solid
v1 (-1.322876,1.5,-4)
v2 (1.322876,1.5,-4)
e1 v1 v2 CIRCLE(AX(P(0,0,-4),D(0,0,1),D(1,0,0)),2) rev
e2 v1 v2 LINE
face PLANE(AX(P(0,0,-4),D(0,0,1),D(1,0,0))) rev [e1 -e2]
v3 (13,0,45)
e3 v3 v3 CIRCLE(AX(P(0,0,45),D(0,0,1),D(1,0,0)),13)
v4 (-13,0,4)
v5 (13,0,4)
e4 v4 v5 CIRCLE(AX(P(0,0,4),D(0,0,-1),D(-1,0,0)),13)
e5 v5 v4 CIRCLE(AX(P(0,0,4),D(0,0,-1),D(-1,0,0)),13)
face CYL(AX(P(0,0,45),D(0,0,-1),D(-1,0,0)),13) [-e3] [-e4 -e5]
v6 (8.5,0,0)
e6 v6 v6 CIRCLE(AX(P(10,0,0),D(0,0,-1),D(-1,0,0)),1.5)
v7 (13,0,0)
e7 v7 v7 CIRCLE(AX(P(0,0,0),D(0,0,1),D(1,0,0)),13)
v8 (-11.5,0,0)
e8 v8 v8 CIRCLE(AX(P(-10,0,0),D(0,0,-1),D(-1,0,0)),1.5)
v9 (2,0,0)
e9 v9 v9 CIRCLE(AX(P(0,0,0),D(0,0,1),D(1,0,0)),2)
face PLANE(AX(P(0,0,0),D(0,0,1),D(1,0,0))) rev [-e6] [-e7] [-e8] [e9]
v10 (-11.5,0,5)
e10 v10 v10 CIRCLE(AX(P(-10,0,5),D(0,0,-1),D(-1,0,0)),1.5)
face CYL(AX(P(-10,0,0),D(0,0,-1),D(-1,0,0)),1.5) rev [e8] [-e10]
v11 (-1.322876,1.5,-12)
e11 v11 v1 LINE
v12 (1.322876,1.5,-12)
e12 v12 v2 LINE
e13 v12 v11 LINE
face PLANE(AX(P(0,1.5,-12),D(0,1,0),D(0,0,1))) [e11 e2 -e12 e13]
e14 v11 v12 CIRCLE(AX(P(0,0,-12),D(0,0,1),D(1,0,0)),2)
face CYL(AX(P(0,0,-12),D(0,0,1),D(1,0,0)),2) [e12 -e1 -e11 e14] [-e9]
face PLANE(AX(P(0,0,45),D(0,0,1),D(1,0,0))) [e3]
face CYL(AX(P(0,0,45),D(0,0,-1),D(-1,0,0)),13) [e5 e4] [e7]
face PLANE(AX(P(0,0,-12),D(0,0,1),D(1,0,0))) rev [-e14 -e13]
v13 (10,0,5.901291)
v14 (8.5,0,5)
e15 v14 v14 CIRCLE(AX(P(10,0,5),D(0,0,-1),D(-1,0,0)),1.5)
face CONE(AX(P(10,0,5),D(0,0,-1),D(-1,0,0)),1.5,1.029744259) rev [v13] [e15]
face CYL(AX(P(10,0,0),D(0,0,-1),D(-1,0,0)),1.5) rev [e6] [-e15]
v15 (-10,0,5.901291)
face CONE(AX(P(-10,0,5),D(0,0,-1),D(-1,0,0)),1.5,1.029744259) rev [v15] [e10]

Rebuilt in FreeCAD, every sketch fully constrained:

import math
import FreeCAD as App
import Part
import Sketcher

V = App.Vector

doc = App.newDocument("Part")
body = doc.addObject("PartDesign::Body", "Body")

sketch1 = doc.addObject("Sketcher::SketchObject", "Sketch")
body.addObject(sketch1)
sketch1.AttachmentSupport = (doc.XY_Plane, [""])
sketch1.MapMode = "FlatFace"
sketch1.addGeometry(Part.Circle(V(0, 0, 0), V(0, 0, 1), 13), False)
sketch1.addConstraint([
    Sketcher.Constraint("Coincident", 0, 3, -1, 1),
    Sketcher.Constraint("Diameter", 0, 26.0),
])
pad1 = doc.addObject("PartDesign::Pad", "Pad")
body.addObject(pad1)
pad1.Profile = sketch1
pad1.Length = 45

sketch2 = doc.addObject("Sketcher::SketchObject", "Sketch001")
body.addObject(sketch2)
sketch2.AttachmentSupport = (doc.XY_Plane, [""])
sketch2.MapMode = "FlatFace"
sketch2.addGeometry([
    Part.ArcOfCircle(Part.Circle(V(0, 0, 0), V(0, 0, 1), 2), math.radians(0), math.radians(48.590378)),
    Part.LineSegment(V(1.322876, 1.5, 0), V(-1.322876, 1.5, 0)),
    Part.ArcOfCircle(Part.Circle(V(0, 0, 0), V(0, 0, 1), 2), math.radians(131.409622), math.radians(360)),
], False)
sketch2.addConstraint([
    Sketcher.Constraint("Coincident", 0, 2, 1, 1),
    Sketcher.Constraint("Coincident", 1, 2, 2, 1),
    Sketcher.Constraint("Tangent", 2, 2, 0, 1),
    Sketcher.Constraint("Horizontal", 1),
    Sketcher.Constraint("Coincident", 0, 3, -1, 1),
    Sketcher.Constraint("Equal", 0, 2),
    Sketcher.Constraint("PointOnObject", 2, 2, -1),
    Sketcher.Constraint("Radius", 0, 2.0),
    Sketcher.Constraint("DistanceY", -1, 1, 0, 2, 1.5),
])
pad2 = doc.addObject("PartDesign::Pad", "Pad001")
body.addObject(pad2)
pad2.Profile = sketch2
pad2.Length = 12
pad2.Reversed = True

sketch3 = doc.addObject("Sketcher::SketchObject", "Sketch002")
body.addObject(sketch3)
sketch3.AttachmentSupport = (doc.XY_Plane, [""])
sketch3.MapMode = "FlatFace"
sketch3.addGeometry([
    Part.ArcOfCircle(Part.Circle(V(0, 0, 0), V(0, 0, 1), 2), math.radians(0), math.radians(48.590378)),
    Part.ArcOfCircle(Part.Circle(V(0, 0, 0), V(0, 0, 1), 2), math.radians(48.590378), math.radians(131.409622)),
    Part.ArcOfCircle(Part.Circle(V(0, 0, 0), V(0, 0, 1), 2), math.radians(131.409622), math.radians(360)),
], False)
sketch3.addConstraint([
    Sketcher.Constraint("Tangent", 0, 2, 1, 1),
    Sketcher.Constraint("Tangent", 1, 2, 2, 1),
    Sketcher.Constraint("Tangent", 2, 2, 0, 1),
    Sketcher.Constraint("Coincident", 0, 3, -1, 1),
    Sketcher.Constraint("PointOnObject", 2, 2, -1),
    Sketcher.Constraint("Horizontal", 0, 2, 1, 2),
    Sketcher.Constraint("Radius", 0, 2.0),
    Sketcher.Constraint("DistanceY", -1, 1, 0, 2, 1.5),
])
pad3 = doc.addObject("PartDesign::Pad", "Pad002")
body.addObject(pad3)
pad3.Profile = sketch3
pad3.Length = 4
pad3.Reversed = True

sketch4 = doc.addObject("Sketcher::SketchObject", "Sketch003")
body.addObject(sketch4)
sketch4.AttachmentSupport = (doc.XY_Plane, [""])
sketch4.MapMode = "FlatFace"
sketch4.addGeometry([
    Part.Circle(V(10, 0, 0), V(0, 0, 1), 1.5),
    Part.Circle(V(-10, 0, 0), V(0, 0, 1), 1.5),
], False)
sketch4.addConstraint([
    Sketcher.Constraint("Equal", 0, 1),
    Sketcher.Constraint("Symmetric", 0, 3, 1, 3, -1, 1),
    Sketcher.Constraint("PointOnObject", 0, 3, -1),
    Sketcher.Constraint("Diameter", 0, 3.0),
    Sketcher.Constraint("DistanceX", -1, 1, 0, 3, 10.0),
])
doc.recompute()
hole = doc.addObject("PartDesign::Hole", "Hole")
body.addObject(hole)
hole.Profile = sketch4
hole.ThreadType = "None"
hole.Diameter = 3
hole.DepthType = "Dimension"
hole.Depth = 5
hole.DrillPoint = "Angled"
hole.DrillPointAngle = 118
hole.Reversed = True

doc.recompute()
